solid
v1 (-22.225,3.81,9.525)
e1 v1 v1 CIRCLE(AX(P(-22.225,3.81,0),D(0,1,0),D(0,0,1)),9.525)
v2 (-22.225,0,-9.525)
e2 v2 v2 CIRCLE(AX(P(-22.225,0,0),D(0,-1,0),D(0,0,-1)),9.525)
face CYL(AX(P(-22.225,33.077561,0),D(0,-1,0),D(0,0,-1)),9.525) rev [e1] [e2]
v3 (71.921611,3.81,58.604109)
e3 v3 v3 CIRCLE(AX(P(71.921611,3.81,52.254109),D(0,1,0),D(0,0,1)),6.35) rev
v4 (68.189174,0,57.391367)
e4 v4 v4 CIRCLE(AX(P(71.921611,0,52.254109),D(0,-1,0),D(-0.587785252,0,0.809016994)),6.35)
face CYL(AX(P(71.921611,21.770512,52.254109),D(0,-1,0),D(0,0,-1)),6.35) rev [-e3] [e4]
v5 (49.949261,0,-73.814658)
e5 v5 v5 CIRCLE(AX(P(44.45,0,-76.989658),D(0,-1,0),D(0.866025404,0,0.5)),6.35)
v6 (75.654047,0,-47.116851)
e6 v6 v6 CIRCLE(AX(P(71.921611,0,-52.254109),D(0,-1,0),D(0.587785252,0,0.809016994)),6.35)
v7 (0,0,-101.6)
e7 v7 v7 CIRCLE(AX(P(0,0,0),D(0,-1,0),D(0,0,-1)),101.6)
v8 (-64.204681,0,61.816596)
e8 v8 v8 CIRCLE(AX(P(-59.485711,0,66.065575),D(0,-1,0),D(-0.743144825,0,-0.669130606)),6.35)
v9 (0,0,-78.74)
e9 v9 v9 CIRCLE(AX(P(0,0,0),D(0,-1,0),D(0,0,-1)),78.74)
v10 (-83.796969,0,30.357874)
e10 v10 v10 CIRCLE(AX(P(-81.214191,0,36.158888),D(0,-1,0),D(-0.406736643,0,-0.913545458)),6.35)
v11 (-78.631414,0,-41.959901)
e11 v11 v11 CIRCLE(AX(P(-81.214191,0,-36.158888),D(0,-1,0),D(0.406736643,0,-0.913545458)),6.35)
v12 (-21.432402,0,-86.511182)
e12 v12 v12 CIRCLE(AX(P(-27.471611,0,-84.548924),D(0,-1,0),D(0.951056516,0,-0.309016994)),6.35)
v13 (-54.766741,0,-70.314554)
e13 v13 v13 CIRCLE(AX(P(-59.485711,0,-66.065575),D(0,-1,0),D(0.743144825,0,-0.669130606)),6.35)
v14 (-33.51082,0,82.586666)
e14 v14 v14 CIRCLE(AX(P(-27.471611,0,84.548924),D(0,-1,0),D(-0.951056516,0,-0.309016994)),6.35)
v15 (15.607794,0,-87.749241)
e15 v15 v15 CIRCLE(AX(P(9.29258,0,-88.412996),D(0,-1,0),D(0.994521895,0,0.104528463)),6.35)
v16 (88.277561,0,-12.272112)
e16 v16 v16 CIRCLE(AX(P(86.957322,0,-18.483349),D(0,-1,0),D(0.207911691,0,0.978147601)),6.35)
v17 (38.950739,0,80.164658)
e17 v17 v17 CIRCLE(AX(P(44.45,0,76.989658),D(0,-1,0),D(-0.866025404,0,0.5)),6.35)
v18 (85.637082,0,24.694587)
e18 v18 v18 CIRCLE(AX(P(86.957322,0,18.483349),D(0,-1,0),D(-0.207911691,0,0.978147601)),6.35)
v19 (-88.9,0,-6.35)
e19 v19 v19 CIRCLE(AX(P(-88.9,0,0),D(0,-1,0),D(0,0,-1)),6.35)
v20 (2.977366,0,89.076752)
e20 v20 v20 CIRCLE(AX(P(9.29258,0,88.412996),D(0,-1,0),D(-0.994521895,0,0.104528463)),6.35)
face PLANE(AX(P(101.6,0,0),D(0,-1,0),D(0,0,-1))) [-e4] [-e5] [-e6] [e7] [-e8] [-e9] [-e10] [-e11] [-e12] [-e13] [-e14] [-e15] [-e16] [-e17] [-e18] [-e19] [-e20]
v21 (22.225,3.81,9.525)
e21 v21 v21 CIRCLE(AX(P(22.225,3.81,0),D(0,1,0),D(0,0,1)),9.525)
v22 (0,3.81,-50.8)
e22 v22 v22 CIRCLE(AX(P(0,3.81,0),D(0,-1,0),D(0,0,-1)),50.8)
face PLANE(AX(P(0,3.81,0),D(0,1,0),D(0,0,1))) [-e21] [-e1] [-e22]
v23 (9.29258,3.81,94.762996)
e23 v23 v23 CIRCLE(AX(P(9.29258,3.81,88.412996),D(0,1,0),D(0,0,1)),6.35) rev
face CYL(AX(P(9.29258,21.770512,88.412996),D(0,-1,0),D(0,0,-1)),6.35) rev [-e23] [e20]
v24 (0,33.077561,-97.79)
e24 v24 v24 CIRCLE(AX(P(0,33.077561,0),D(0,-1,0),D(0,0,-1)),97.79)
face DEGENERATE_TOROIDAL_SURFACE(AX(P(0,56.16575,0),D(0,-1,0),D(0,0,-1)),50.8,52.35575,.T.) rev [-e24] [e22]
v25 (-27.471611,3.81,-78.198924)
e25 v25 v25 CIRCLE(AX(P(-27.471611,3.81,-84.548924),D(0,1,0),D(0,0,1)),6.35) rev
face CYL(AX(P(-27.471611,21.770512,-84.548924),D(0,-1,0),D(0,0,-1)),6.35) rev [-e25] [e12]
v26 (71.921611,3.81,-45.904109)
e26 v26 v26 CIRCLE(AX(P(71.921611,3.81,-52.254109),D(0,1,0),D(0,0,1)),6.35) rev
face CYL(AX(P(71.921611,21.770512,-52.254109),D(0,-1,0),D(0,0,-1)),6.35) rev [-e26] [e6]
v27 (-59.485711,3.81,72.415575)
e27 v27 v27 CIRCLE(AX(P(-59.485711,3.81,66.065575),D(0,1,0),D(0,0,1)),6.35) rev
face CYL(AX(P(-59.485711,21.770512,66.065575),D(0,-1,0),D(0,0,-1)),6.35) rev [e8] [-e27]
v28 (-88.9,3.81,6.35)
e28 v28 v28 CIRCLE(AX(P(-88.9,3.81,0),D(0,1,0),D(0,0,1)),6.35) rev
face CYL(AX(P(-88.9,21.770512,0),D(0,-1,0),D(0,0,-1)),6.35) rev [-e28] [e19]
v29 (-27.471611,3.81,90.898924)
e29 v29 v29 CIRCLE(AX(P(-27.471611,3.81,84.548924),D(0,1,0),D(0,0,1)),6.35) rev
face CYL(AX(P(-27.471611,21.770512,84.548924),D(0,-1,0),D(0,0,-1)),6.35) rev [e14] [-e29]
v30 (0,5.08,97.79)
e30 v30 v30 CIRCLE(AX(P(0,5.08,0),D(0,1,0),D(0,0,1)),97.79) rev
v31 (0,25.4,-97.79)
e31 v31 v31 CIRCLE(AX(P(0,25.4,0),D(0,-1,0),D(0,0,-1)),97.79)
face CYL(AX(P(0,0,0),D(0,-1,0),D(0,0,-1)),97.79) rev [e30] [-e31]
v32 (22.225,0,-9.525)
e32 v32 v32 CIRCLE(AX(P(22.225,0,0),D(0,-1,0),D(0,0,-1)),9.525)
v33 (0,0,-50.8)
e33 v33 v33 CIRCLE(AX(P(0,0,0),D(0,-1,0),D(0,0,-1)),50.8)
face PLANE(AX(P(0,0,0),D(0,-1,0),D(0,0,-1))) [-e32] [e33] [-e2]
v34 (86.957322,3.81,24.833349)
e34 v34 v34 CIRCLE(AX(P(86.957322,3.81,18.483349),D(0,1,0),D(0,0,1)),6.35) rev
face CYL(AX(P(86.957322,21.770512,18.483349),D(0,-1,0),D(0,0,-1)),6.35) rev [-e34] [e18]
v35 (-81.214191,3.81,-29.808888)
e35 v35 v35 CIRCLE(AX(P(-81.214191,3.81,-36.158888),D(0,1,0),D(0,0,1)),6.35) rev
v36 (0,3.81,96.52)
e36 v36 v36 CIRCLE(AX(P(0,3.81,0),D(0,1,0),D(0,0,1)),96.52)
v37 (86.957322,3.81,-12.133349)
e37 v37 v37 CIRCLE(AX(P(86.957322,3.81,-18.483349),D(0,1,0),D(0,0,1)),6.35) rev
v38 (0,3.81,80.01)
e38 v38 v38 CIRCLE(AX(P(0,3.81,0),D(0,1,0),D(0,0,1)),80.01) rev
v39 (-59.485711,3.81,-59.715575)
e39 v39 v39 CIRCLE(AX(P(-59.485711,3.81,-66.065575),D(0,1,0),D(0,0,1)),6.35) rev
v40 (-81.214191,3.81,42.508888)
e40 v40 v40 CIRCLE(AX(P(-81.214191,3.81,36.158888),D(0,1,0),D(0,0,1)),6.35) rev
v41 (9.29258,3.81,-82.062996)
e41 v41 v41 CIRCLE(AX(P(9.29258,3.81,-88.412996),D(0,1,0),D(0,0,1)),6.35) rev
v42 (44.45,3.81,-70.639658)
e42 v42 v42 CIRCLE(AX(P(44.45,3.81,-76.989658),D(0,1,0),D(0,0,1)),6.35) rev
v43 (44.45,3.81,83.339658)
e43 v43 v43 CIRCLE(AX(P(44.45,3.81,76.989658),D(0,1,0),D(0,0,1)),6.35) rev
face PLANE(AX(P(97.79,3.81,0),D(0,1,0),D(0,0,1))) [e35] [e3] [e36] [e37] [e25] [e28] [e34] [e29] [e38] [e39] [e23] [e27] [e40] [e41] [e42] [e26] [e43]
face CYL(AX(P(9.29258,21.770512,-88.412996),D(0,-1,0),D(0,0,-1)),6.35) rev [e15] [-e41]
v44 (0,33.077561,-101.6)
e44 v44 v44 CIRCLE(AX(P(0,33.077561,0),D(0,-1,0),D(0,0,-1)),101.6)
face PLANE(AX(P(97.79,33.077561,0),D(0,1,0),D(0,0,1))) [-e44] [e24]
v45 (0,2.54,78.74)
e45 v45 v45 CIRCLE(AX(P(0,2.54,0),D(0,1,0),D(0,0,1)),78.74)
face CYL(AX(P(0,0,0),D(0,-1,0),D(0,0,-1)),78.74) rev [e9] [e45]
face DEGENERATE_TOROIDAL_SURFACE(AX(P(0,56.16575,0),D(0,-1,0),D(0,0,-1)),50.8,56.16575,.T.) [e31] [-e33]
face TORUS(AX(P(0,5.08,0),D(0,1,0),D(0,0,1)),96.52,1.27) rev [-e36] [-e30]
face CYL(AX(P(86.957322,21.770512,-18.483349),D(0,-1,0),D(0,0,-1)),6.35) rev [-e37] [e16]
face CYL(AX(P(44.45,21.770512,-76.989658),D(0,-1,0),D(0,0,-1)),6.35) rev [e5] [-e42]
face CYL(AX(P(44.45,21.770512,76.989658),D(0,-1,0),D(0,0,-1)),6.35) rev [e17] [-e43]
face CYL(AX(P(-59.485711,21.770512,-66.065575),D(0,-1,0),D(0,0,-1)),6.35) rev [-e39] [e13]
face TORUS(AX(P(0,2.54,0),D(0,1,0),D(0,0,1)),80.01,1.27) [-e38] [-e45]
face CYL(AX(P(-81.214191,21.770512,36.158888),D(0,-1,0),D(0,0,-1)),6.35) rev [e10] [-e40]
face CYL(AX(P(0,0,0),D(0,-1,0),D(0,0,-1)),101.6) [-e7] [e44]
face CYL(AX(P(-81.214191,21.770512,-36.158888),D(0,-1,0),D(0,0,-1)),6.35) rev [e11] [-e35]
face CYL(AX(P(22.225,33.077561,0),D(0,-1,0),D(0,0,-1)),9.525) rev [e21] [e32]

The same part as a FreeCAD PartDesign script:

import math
import FreeCAD as App
import Part
import Sketcher
Q = App.Units.Quantity


def edges_at(feature, points):
    """Names of the edges that pass closest to the given points."""
    edges = feature.Shape.Edges
    near = lambda p: min(range(len(edges)), key=lambda i: edges[i].distToShape(Part.Vertex(*p))[0])
    return sorted({f"Edge{near(p) + 1}" for p in points})

doc = App.newDocument("Part")
body = doc.addObject("PartDesign::Body", "Body")

sketch1 = body.newObject("Sketcher::SketchObject", "Sketch")
sketch1.AttachmentSupport = (doc.getObject("XY_Plane"), [""])
sketch1.MapMode = "FlatFace"
sketch1.addGeometry([
    Part.LineSegment(App.Vector(0, 0, 0), App.Vector(50.8, 0, 0)),
    Part.ArcOfCircle(Part.Circle(App.Vector(50.8, 56.16575, 0), App.Vector(0, 0, 1), 56.16575), math.radians(-90), math.radians(-33.213961)),
    Part.LineSegment(App.Vector(97.79, 25.4, 0), App.Vector(97.79, 3.81, 0)),
    Part.LineSegment(App.Vector(97.79, 3.81, 0), App.Vector(78.74, 3.81, 0)),
    Part.LineSegment(App.Vector(78.74, 3.81, 0), App.Vector(78.74, 0, 0)),
    Part.LineSegment(App.Vector(78.74, 0, 0), App.Vector(101.6, 0, 0)),
    Part.LineSegment(App.Vector(101.6, 0, 0), App.Vector(101.6, 33.077561, 0)),
    Part.LineSegment(App.Vector(101.6, 33.077561, 0), App.Vector(97.79, 33.077561, 0)),
    Part.ArcOfCircle(Part.Circle(App.Vector(50.8, 56.16575, 0), App.Vector(0, 0, 1), 52.35575), math.radians(-90), math.radians(-26.166853)),
    Part.LineSegment(App.Vector(50.8, 3.81, 0), App.Vector(0, 3.81, 0)),
    Part.LineSegment(App.Vector(0, 3.81, 0), App.Vector(0, 0, 0)),
], False)
sketch1.addConstraint([
    Sketcher.Constraint("Tangent", 0, 2, 1, 1),
    Sketcher.Constraint("Coincident", 1, 2, 2, 1),
    Sketcher.Constraint("Coincident", 2, 2, 3, 1),
    Sketcher.Constraint("Coincident", 3, 2, 4, 1),
    Sketcher.Constraint("Coincident", 4, 2, 5, 1),
    Sketcher.Constraint("Coincident", 5, 2, 6, 1),
    Sketcher.Constraint("Coincident", 6, 2, 7, 1),
    Sketcher.Constraint("Coincident", 7, 2, 8, 2),
    Sketcher.Constraint("Tangent", 8, 1, 9, 1),
    Sketcher.Constraint("Coincident", 9, 2, 10, 1),
    Sketcher.Constraint("Coincident", 10, 2, 0, 1),
    Sketcher.Constraint("Horizontal", 0),
    Sketcher.Constraint("Vertical", 2),
    Sketcher.Constraint("Horizontal", 3),
    Sketcher.Constraint("Vertical", 4),
    Sketcher.Constraint("Horizontal", 5),
    Sketcher.Constraint("Vertical", 6),
    Sketcher.Constraint("Horizontal", 7),
    Sketcher.Constraint("Horizontal", 9),
    Sketcher.Constraint("Vertical", 10),
    Sketcher.Constraint("Coincident", 10, 2, -1, 1),
    Sketcher.Constraint("Coincident", 8, 3, 1, 3),
    Sketcher.Constraint("PointOnObject", 4, 2, -1),
    Sketcher.Constraint("Horizontal", 3, 2, 8, 1),
    Sketcher.Constraint("Vertical", 2, 2, 7, 2),
    Sketcher.Constraint("Equal", 7, 4),
    Sketcher.Constraint("DistanceX", 0, 1, 0, 2, Q("2 in")),
    Sketcher.Constraint("DistanceX", 5, 1, 5, 2, Q("0.9 in")),
    Sketcher.Constraint("DistanceY", -1, 1, 1, 2, Q("1 in")),
    Sketcher.Constraint("DistanceX", -1, 1, 5, 2, Q("4 in")),
    Sketcher.Constraint("DistanceX", 3, 2, 3, 1, Q("0.75 in")),
])
revolution = body.newObject("PartDesign::Revolution", "Revolution")
revolution.Profile = sketch1
revolution.ReferenceAxis = (sketch1, ["V_Axis"])
revolution.Angle = 360

sketch2 = body.newObject("Sketcher::SketchObject", "Sketch001")
sketch2.AttachmentSupport = (doc.getObject("XZ_Plane"), [""])
sketch2.MapMode = "FlatFace"
sketch2.addGeometry([
    Part.Circle(App.Vector(-22.225, 0, 0), App.Vector(0, 0, 1), 9.525),
    Part.Circle(App.Vector(22.225, 0, 0), App.Vector(0, 0, 1), 9.525),
], False)
sketch2.addConstraint([
    Sketcher.Constraint("Equal", 0, 1),
    Sketcher.Constraint("Symmetric", 0, 3, 1, 3, -1, 1),
    Sketcher.Constraint("PointOnObject", 0, 3, -1),
    Sketcher.Constraint("Diameter", 0, Q("0.75 in")),
    Sketcher.Constraint("DistanceX", 0, 3, 1, 3, Q("1.75 in")),
])
pocket1 = body.newObject("PartDesign::Pocket", "Pocket")
pocket1.Profile = sketch2
pocket1.Type = "ThroughAll"

sketch3 = body.newObject("Sketcher::SketchObject", "Sketch002")
sketch3.AttachmentSupport = (doc.getObject("XZ_Plane"), [""])
sketch3.MapMode = "FlatFace"
sketch3.addGeometry(Part.Circle(App.Vector(-88.9, 0, 0), App.Vector(0, 0, 1), 6.35), False)
sketch3.addConstraint([
    Sketcher.Constraint("PointOnObject", 0, 3, -1),
    Sketcher.Constraint("Diameter", 0, Q("0.5 in")),
    Sketcher.Constraint("DistanceX", 0, 3, -1, 1, Q("3.5 in")),
])
pocket2 = body.newObject("PartDesign::Pocket", "Pocket001")
pocket2.Profile = sketch3
pocket2.Length = Q("0.15 in")
doc.recompute()

polarpattern = body.newObject("PartDesign::PolarPattern", "PolarPattern")
polarpattern.Originals = [pocket2]
polarpattern.Axis = (doc.getObject("Y_Axis"), [""])
polarpattern.Angle = 360
polarpattern.Occurrences = 15
body.Tip = polarpattern
doc.recompute()

fillet = body.newObject("PartDesign::Fillet", "Fillet")
fillet.Base = (polarpattern, edges_at(polarpattern, [(0, 3.81, 78.74), (0, 3.81, 97.79)]))
fillet.Radius = Q("0.05 in")

doc.recompute()
